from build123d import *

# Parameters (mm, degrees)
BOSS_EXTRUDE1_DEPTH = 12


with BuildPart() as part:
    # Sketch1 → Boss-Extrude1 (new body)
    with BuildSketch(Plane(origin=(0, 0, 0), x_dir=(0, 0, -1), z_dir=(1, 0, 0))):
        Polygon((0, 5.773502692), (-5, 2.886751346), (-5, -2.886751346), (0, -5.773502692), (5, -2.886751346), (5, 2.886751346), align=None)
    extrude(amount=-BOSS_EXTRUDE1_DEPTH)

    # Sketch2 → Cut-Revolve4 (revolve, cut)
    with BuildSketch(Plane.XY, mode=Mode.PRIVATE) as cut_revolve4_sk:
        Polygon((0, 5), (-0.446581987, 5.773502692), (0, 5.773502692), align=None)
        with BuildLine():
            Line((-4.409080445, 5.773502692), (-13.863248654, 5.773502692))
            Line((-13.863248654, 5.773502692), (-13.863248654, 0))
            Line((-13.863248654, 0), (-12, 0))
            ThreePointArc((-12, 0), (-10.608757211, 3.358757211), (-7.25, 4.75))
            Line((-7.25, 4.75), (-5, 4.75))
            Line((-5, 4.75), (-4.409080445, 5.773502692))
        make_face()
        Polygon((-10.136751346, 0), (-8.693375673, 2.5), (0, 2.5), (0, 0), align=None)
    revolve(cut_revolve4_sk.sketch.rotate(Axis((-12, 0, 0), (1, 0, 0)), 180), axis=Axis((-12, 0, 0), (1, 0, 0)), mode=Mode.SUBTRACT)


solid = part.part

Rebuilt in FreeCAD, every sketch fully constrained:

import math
import FreeCAD as App
import Part
import Sketcher
from FreeCAD import Vector
Q = App.Units.Quantity

doc = App.newDocument("Part")
body = doc.addObject("PartDesign::Body", "Body")

sketch1 = doc.addObject("Sketcher::SketchObject", "Sketch")
body.addObject(sketch1)
sketch1.AttachmentSupport = (doc.YZ_Plane, [""])
sketch1.MapMode = "FlatFace"
sketch1.addGeometry([
    Part.LineSegment(Vector(6, 0, 0), Vector(3, 5, 0)),
    Part.LineSegment(Vector(3, 5, 0), Vector(-3, 5, 0)),
    Part.LineSegment(Vector(-3, 5, 0), Vector(-6, 0, 0)),
    Part.LineSegment(Vector(-6, 0, 0), Vector(-3, -5, 0)),
    Part.LineSegment(Vector(-3, -5, 0), Vector(3, -5, 0)),
    Part.LineSegment(Vector(3, -5, 0), Vector(6, 0, 0)),
], False)
sketch1.addConstraint([
    Sketcher.Constraint("Coincident", 0, 2, 1, 1),
    Sketcher.Constraint("Coincident", 1, 2, 2, 1),
    Sketcher.Constraint("Coincident", 2, 2, 3, 1),
    Sketcher.Constraint("Coincident", 3, 2, 4, 1),
    Sketcher.Constraint("Coincident", 4, 2, 5, 1),
    Sketcher.Constraint("Coincident", 5, 2, 0, 1),
    Sketcher.Constraint("Horizontal", 1),
    Sketcher.Constraint("Horizontal", 4),
    Sketcher.Constraint("Symmetric", 0, 2, 3, 2, -1, 1),
    Sketcher.Constraint("Symmetric", 2, 2, 5, 2, -1, 1),
    Sketcher.Constraint("PointOnObject", 2, 2, -1),
    Sketcher.Constraint("Parallel", 2, 5),
    Sketcher.Constraint("Vertical", 1, 2, 3, 2),
    Sketcher.Constraint("Angle", 0, Q("120 deg")),
    Sketcher.Constraint("DistanceY", -1, 1, 0, 2, 5.0),
    Sketcher.Constraint("DistanceX", 1, 2, 1, 1, 5.773503),
])
pad1 = doc.addObject("PartDesign::Pad", "Pad")
body.addObject(pad1)
pad1.Profile = sketch1
pad1.Length = 12
pad1.Reversed = True

sketch2 = doc.addObject("Sketcher::SketchObject", "Sketch001")
body.addObject(sketch2)
sketch2.AttachmentSupport = (doc.XY_Plane, [""])
sketch2.MapMode = "FlatFace"
sketch2.addGeometry([
    Part.LineSegment(Vector(-0.45, 5.77, 0), Vector(0, 5, 0)),
    Part.LineSegment(Vector(0, 5, 0), Vector(0, 5.77, 0)),
    Part.LineSegment(Vector(0, 5.77, 0), Vector(-0.45, 5.77, 0)),
    Part.LineSegment(Vector(-4.41, 5.77, 0), Vector(-13.86, 5.77, 0)),
    Part.LineSegment(Vector(-13.86, 5.77, 0), Vector(-13.86, 0, 0)),
    Part.LineSegment(Vector(-13.86, 0, 0), Vector(-12, 0, 0)),
    Part.ArcOfCircle(Part.Circle(Vector(-7.25, 0, 0), Vector(0, 0, 1), 4.75), math.radians(90), math.radians(180)),
    Part.LineSegment(Vector(-7.25, 4.75, 0), Vector(-5, 4.75, 0)),
    Part.LineSegment(Vector(-5, 4.75, 0), Vector(-4.41, 5.77, 0)),
    Part.LineSegment(Vector(-8.69, 2.5, 0), Vector(-10.14, 0, 0)),
    Part.LineSegment(Vector(-10.14, 0, 0), Vector(0, 0, 0)),
    Part.LineSegment(Vector(0, 0, 0), Vector(0, 2.5, 0)),
    Part.LineSegment(Vector(0, 2.5, 0), Vector(-8.69, 2.5, 0)),
], False)
sketch2.addConstraint([
    Sketcher.Constraint("Coincident", 0, 2, 1, 1),
    Sketcher.Constraint("Coincident", 1, 2, 2, 1),
    Sketcher.Constraint("Coincident", 2, 2, 0, 1),
    Sketcher.Constraint("Coincident", 3, 2, 4, 1),
    Sketcher.Constraint("Coincident", 4, 2, 5, 1),
    Sketcher.Constraint("Coincident", 5, 2, 6, 2),
    Sketcher.Constraint("Tangent", 6, 1, 7, 1),
    Sketcher.Constraint("Coincident", 7, 2, 8, 1),
    Sketcher.Constraint("Coincident", 8, 2, 3, 1),
    Sketcher.Constraint("Coincident", 9, 2, 10, 1),
    Sketcher.Constraint("Coincident", 10, 2, 11, 1),
    Sketcher.Constraint("Coincident", 11, 2, 12, 1),
    Sketcher.Constraint("Coincident", 12, 2, 9, 1),
    Sketcher.Constraint("Vertical", 1),
    Sketcher.Constraint("Horizontal", 2),
    Sketcher.Constraint("Horizontal", 3),
    Sketcher.Constraint("Vertical", 4),
    Sketcher.Constraint("Horizontal", 5),
    Sketcher.Constraint("Horizontal", 7),
    Sketcher.Constraint("Horizontal", 10),
    Sketcher.Constraint("Vertical", 11),
    Sketcher.Constraint("Horizontal", 12),
    Sketcher.Constraint("Coincident", 10, 2, -1, 1),
    Sketcher.Constraint("PointOnObject", 6, 3, -1),
    Sketcher.Constraint("PointOnObject", 0, 2, -2),
    Sketcher.Constraint("PointOnObject", 4, 2, -1),
    Sketcher.Constraint("Parallel", 8, 9),
    Sketcher.Constraint("Horizontal", 2, 2, 3, 2),
    Sketcher.Constraint("Angle", 0, Q("-60 deg")),
    Sketcher.Constraint("Angle", 8, Q("60 deg")),
    Sketcher.Constraint("Radius", 6, 4.75),
    Sketcher.Constraint("DistanceY", 11, 1, 11, 2, 2.5),
    Sketcher.Constraint("DistanceY", -1, 1, 0, 2, 5.0),
    Sketcher.Constraint("DistanceX", 5, 2, -1, 1, 12.0),
    Sketcher.Constraint("DistanceX", 7, 2, -1, 1, 5.0),
    Sketcher.Constraint("DistanceX", 2, 2, 2, 1, 0.446582),
    Sketcher.Constraint("DistanceX", 3, 2, 3, 1, 9.454168),
    Sketcher.Constraint("DistanceX", 10, 1, 10, 2, 10.136751),
])
groove = doc.addObject("PartDesign::Groove", "Groove")
body.addObject(groove)
groove.Profile = sketch2
groove.ReferenceAxis = (sketch2, ["H_Axis"])
groove.Angle = 360

doc.recompute()
